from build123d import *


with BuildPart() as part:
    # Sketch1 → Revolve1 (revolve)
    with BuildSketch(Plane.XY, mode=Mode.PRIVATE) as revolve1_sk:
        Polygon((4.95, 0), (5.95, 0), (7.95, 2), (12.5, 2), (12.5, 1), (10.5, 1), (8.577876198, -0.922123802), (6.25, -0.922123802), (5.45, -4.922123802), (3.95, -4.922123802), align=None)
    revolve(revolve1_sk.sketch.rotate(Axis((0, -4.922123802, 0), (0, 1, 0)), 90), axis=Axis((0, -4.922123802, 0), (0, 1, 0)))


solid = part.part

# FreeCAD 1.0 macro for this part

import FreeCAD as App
import Part
import Sketcher
Q = App.Units.Quantity

doc = App.newDocument("Part")
body = doc.addObject("PartDesign::Body", "Body")

# Sketch on XY plane
sketch1 = doc.addObject("Sketcher::SketchObject", "Sketch")
body.addObject(sketch1)
sketch1.AttachmentSupport = (doc.XY_Plane, [""])
sketch1.MapMode = "FlatFace"
sketch1.addGeometry(Part.LineSegment(App.Vector(5.95, 0, 0), App.Vector(4.95, 0, 0)), False)
sketch1.addGeometry(Part.LineSegment(App.Vector(4.95, 0, 0), App.Vector(3.95, -4.922124, 0)), False)
sketch1.addGeometry(Part.LineSegment(App.Vector(3.95, -4.922124, 0), App.Vector(5.45, -4.922124, 0)), False)
sketch1.addGeometry(Part.LineSegment(App.Vector(5.45, -4.922124, 0), App.Vector(6.25, -0.922124, 0)), False)
sketch1.addGeometry(Part.LineSegment(App.Vector(6.25, -0.922124, 0), App.Vector(8.577876, -0.922124, 0)), False)
sketch1.addGeometry(Part.LineSegment(App.Vector(8.577876, -0.922124, 0), App.Vector(10.5, 1, 0)), False)
sketch1.addGeometry(Part.LineSegment(App.Vector(10.5, 1, 0), App.Vector(12.5, 1, 0)), False)
sketch1.addGeometry(Part.LineSegment(App.Vector(12.5, 1, 0), App.Vector(12.5, 2, 0)), False)
sketch1.addGeometry(Part.LineSegment(App.Vector(12.5, 2, 0), App.Vector(7.95, 2, 0)), False)
sketch1.addGeometry(Part.LineSegment(App.Vector(7.95, 2, 0), App.Vector(5.95, 0, 0)), False)
sketch1.addConstraint(Sketcher.Constraint("Coincident", 0, 2, 1, 1))
sketch1.addConstraint(Sketcher.Constraint("Coincident", 1, 2, 2, 1))
sketch1.addConstraint(Sketcher.Constraint("Coincident", 2, 2, 3, 1))
sketch1.addConstraint(Sketcher.Constraint("Coincident", 3, 2, 4, 1))
sketch1.addConstraint(Sketcher.Constraint("Coincident", 4, 2, 5, 1))
sketch1.addConstraint(Sketcher.Constraint("Coincident", 5, 2, 6, 1))
sketch1.addConstraint(Sketcher.Constraint("Coincident", 6, 2, 7, 1))
sketch1.addConstraint(Sketcher.Constraint("Coincident", 7, 2, 8, 1))
sketch1.addConstraint(Sketcher.Constraint("Coincident", 8, 2, 9, 1))
sketch1.addConstraint(Sketcher.Constraint("Coincident", 9, 2, 0, 1))
sketch1.addConstraint(Sketcher.Constraint("Horizontal", 0))
sketch1.addConstraint(Sketcher.Constraint("Horizontal", 2))
sketch1.addConstraint(Sketcher.Constraint("Horizontal", 4))
sketch1.addConstraint(Sketcher.Constraint("Horizontal", 6))
sketch1.addConstraint(Sketcher.Constraint("Vertical", 7))
sketch1.addConstraint(Sketcher.Constraint("Horizontal", 8))
sketch1.addConstraint(Sketcher.Constraint("PointOnObject", 0, 2, -1))
sketch1.addConstraint(Sketcher.Constraint("Parallel", 5, 9))
sketch1.addConstraint(Sketcher.Constraint("Equal", 0, 7))
sketch1.addConstraint(Sketcher.Constraint("DistanceX", 0, 2, 0, 1, Q("1 mm")))
sketch1.addConstraint(Sketcher.Constraint("DistanceX", 6, 1, 6, 2, Q("2 mm")))
sketch1.addConstraint(Sketcher.Constraint("Angle", 5, Q("45 deg")))
sketch1.addConstraint(Sketcher.Constraint("DistanceX", 2, 1, 2, 2, Q("1.5 mm")))
sketch1.addConstraint(Sketcher.Constraint("DistanceY", -1, 1, 5, 2, Q("1 mm")))
sketch1.addConstraint(Sketcher.Constraint("DistanceX", 1, 2, 0, 2, Q("1 mm")))
sketch1.addConstraint(Sketcher.Constraint("DistanceY", 2, 2, 3, 2, Q("4 mm")))
sketch1.addConstraint(Sketcher.Constraint("DistanceX", 8, 2, 8, 1, Q("4.55 mm")))
sketch1.addConstraint(Sketcher.Constraint("DistanceX", -1, 1, 5, 2, Q("10.5 mm")))
sketch1.addConstraint(Sketcher.Constraint("DistanceX", 0, 2, 3, 2, Q("1.3 mm")))
sketch1.addConstraint(Sketcher.Constraint("Distance", 1, Q("5.022679 mm")))
revolution = doc.addObject("PartDesign::Revolution", "Revolution")
body.addObject(revolution)
revolution.Profile = sketch1
revolution.ReferenceAxis = (sketch1, ["V_Axis"])
revolution.Angle = 360

doc.recompute()
